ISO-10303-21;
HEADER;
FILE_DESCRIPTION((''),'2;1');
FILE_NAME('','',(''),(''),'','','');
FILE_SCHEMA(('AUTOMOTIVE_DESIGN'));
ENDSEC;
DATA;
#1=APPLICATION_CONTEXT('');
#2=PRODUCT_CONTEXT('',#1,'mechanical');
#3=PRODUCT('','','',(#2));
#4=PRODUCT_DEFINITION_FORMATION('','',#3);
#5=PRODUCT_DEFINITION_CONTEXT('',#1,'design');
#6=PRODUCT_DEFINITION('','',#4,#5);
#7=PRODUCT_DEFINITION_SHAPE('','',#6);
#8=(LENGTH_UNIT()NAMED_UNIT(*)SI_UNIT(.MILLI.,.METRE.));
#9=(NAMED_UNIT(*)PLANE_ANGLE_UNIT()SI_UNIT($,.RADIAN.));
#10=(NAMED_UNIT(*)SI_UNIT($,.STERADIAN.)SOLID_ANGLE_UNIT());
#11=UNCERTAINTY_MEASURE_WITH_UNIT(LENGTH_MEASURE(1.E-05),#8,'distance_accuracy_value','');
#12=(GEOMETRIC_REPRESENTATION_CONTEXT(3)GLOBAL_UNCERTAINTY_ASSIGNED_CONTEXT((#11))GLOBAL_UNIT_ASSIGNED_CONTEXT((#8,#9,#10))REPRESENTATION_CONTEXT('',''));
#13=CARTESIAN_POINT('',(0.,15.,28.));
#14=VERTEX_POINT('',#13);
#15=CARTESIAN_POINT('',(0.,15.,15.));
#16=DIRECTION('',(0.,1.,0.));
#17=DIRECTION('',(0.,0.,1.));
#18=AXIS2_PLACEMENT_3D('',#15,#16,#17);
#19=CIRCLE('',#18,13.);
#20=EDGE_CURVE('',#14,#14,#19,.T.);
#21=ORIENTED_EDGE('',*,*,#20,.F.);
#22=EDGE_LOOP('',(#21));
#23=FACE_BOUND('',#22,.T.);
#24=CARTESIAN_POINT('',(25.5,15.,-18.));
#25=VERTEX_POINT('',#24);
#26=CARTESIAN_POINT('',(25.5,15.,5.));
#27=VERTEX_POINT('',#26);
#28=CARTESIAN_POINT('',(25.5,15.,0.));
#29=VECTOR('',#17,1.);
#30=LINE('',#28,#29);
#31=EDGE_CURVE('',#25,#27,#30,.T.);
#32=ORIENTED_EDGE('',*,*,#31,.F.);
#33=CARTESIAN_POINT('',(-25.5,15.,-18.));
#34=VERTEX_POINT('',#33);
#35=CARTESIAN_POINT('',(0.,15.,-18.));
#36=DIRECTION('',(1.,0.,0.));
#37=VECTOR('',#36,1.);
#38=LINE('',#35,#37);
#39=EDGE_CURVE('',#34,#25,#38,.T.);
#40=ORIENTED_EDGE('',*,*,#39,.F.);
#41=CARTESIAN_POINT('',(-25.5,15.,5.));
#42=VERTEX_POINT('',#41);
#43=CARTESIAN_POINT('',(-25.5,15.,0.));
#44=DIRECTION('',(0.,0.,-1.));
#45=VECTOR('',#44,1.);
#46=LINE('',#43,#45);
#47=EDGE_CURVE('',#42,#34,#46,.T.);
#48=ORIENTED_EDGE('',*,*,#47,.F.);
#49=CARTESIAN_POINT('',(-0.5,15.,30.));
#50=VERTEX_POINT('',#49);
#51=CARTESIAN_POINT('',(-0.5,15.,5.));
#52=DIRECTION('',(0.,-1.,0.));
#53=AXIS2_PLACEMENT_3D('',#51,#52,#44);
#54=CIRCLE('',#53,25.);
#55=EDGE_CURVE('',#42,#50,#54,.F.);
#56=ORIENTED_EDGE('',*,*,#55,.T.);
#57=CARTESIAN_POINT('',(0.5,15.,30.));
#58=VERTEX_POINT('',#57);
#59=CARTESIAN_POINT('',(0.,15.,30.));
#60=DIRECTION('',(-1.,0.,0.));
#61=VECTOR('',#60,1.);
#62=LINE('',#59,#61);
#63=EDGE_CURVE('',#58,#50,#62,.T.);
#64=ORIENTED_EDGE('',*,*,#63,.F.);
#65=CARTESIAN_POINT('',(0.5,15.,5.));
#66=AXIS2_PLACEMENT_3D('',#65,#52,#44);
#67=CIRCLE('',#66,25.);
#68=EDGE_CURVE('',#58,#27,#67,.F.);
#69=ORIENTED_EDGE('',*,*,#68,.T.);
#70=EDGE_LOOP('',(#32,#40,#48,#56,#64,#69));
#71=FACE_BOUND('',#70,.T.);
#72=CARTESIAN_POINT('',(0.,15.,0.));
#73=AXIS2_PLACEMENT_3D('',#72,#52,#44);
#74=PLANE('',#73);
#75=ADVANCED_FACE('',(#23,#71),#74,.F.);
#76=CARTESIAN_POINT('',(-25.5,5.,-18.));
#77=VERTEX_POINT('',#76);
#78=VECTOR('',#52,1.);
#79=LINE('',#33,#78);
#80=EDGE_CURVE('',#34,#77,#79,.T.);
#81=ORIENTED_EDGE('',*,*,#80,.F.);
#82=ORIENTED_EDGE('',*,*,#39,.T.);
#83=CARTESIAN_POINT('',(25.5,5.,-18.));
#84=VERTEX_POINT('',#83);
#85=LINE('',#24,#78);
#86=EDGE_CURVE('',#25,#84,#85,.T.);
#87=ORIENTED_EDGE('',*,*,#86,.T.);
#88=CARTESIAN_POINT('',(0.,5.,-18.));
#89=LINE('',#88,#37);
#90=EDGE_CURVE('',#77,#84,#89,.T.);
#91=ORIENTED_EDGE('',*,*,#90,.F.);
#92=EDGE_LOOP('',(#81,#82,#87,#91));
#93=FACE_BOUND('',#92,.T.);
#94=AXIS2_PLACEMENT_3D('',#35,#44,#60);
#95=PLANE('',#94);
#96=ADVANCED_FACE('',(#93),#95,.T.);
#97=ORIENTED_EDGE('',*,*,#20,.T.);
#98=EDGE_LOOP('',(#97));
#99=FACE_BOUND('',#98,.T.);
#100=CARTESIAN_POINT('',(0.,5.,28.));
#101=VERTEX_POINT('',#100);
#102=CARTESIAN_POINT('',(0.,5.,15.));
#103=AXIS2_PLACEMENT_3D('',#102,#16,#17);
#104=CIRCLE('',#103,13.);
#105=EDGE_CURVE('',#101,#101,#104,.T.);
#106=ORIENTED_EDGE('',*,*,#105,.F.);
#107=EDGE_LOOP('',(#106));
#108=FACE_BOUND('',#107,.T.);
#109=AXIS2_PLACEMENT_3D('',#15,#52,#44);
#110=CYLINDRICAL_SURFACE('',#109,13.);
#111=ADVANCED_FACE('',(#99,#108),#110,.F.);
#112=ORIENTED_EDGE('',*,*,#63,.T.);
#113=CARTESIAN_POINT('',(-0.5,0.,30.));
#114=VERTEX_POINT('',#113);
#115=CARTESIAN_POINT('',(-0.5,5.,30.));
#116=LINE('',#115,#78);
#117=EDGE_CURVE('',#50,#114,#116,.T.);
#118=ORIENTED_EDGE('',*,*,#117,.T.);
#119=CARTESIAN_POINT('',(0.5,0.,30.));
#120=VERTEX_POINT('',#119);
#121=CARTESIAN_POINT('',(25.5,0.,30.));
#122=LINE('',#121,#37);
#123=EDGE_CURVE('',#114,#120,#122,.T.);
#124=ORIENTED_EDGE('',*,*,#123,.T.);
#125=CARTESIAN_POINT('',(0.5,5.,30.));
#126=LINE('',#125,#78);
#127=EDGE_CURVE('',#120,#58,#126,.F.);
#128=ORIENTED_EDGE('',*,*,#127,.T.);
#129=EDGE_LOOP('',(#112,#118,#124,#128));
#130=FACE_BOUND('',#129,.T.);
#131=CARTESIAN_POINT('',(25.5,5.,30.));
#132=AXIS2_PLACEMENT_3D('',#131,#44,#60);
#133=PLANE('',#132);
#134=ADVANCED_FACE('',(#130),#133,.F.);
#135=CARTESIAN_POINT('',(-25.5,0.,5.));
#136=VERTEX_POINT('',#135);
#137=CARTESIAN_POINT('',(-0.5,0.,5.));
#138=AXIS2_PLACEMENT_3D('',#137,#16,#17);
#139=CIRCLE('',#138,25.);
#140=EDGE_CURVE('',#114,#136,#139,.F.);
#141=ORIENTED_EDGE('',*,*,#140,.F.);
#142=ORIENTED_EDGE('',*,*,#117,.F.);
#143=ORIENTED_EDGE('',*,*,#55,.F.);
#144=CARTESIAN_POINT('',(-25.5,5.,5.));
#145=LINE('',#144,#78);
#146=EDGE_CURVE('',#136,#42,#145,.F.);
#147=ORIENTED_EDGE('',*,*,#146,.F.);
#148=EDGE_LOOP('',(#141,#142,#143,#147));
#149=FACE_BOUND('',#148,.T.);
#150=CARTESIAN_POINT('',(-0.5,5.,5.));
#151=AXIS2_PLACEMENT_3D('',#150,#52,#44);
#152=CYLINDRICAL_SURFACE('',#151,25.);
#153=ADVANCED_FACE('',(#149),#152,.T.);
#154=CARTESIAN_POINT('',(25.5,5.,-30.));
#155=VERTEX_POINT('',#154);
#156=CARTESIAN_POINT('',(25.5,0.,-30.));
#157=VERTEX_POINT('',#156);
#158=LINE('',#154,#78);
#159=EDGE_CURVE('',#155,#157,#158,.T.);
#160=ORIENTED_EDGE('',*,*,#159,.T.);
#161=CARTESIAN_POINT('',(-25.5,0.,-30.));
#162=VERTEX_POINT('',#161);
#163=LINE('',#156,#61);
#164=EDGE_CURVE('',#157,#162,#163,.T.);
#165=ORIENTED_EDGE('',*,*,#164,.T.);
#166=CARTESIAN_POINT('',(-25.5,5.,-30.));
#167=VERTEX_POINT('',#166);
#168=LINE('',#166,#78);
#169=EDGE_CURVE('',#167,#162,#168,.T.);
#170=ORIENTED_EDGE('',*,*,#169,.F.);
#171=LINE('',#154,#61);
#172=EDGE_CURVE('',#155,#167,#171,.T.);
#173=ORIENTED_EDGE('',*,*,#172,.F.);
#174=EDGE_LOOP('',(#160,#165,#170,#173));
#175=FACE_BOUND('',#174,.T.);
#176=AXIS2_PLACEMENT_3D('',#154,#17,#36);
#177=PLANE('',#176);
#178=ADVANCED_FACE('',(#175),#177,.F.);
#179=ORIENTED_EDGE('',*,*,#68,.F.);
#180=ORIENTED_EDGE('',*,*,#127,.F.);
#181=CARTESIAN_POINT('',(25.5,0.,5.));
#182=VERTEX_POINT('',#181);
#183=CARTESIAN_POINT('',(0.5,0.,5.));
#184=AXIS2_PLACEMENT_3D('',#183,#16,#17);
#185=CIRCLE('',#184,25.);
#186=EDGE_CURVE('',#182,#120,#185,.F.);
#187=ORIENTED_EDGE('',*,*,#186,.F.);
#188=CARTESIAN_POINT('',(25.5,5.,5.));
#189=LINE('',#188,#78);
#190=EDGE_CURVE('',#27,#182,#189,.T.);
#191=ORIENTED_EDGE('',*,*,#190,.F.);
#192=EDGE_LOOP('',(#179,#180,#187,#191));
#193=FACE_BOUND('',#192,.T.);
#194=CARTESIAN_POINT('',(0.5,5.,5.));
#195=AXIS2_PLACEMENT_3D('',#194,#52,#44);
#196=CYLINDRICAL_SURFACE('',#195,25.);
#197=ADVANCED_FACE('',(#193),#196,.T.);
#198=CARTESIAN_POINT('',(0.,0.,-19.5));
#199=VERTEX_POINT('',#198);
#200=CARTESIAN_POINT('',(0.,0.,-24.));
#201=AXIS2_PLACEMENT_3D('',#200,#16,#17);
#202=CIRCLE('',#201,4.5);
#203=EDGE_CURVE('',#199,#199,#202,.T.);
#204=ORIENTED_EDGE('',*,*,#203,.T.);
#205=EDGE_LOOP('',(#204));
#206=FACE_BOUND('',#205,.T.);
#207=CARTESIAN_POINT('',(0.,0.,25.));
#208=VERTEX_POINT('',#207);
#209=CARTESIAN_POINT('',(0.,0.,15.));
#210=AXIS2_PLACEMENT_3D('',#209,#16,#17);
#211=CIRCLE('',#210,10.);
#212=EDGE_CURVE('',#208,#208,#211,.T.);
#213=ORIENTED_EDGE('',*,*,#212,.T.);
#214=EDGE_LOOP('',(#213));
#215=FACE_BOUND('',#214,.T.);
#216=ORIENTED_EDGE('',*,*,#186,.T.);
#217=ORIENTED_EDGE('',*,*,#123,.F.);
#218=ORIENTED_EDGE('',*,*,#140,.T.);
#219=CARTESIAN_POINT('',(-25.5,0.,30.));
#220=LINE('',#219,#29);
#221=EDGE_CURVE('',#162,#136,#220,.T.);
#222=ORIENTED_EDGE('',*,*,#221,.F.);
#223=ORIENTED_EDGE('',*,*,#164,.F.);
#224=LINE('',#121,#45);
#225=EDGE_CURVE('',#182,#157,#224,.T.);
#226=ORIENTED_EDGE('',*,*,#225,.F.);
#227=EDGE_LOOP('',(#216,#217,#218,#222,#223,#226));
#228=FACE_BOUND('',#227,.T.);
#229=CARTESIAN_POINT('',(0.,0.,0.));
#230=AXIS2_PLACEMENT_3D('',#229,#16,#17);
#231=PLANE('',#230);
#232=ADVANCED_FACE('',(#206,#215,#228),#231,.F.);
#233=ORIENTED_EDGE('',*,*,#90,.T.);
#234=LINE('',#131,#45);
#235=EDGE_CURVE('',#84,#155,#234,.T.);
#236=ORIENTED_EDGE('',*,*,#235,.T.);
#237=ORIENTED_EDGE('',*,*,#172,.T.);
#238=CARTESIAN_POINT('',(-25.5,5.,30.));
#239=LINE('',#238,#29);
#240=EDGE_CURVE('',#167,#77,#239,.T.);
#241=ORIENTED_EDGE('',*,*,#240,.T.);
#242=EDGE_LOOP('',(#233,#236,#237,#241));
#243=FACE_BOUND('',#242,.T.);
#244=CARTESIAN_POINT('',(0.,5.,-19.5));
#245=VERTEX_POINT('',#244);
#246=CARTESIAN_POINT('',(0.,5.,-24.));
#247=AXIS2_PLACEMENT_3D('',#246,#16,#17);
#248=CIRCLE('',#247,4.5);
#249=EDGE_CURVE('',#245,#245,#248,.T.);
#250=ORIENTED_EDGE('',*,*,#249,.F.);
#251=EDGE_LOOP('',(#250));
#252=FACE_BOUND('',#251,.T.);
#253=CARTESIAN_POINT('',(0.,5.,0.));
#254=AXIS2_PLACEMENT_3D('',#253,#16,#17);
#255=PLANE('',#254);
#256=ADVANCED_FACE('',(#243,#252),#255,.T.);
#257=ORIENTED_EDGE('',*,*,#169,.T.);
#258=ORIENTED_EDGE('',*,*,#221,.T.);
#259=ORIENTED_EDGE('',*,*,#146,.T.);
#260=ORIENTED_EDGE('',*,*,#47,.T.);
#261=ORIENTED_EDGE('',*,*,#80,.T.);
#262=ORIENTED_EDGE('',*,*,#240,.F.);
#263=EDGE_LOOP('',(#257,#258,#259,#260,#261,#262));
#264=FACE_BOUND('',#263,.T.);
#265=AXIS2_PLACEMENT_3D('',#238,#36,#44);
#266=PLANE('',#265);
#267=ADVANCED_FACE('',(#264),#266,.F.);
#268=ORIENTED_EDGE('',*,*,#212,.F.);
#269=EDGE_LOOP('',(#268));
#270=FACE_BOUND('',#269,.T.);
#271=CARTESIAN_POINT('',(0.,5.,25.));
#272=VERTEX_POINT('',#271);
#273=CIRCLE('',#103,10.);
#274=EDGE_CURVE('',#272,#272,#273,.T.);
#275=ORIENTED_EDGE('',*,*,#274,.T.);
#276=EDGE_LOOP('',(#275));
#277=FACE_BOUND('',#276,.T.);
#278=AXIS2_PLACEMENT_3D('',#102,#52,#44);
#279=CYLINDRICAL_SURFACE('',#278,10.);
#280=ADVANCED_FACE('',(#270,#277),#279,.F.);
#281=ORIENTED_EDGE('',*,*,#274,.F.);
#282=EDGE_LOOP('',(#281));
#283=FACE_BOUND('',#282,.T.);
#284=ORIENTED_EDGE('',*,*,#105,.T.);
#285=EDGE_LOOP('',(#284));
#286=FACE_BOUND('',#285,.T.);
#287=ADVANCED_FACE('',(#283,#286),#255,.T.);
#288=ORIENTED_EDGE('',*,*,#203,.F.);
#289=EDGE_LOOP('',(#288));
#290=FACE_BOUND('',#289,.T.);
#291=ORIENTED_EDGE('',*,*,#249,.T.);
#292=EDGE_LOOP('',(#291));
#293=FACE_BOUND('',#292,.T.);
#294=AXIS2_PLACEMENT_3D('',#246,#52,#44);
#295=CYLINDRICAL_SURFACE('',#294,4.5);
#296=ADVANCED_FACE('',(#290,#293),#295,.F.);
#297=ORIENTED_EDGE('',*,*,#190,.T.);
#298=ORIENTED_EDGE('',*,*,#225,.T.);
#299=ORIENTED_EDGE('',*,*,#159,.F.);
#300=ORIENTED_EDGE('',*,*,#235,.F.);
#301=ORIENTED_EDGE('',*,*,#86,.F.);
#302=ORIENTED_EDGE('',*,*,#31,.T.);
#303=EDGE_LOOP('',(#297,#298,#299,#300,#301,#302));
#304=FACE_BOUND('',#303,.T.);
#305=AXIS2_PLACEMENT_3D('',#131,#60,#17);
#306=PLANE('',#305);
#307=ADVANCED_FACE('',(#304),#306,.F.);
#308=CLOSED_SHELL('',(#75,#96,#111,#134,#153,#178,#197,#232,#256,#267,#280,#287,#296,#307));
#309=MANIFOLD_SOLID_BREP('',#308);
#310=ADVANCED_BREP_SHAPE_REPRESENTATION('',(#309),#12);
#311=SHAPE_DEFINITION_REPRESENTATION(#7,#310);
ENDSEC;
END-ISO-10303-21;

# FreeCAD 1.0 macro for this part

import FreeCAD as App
import Part
import Sketcher
from FreeCAD import Vector


def edges_at(feature, points):
    """Names of the edges that pass closest to the given points."""
    edges = feature.Shape.Edges
    near = lambda p: min(range(len(edges)), key=lambda i: edges[i].distToShape(Part.Vertex(*p))[0])
    return sorted({f"Edge{near(p) + 1}" for p in points})


def add_polygon(sketch, points):
    """Adds a closed chain of lines whose ends are joined by coincident constraints."""
    first, n = sketch.GeometryCount, len(points)
    for a, b in zip(points, points[1:] + points[:1]):
        sketch.addGeometry(Part.LineSegment(App.Vector(*a, 0), App.Vector(*b, 0)), False)
    for i in range(n):
        sketch.addConstraint(Sketcher.Constraint("Coincident", first + i, 2, first + (i + 1) % n, 1))

doc = App.newDocument("Part")
body = doc.addObject("PartDesign::Body", "Body")

# Sketch on XZ plane
sketch1 = body.newObject("Sketcher::SketchObject", "Sketch")
sketch1.AttachmentSupport = (doc.getObject("XZ_Plane"), [""])
sketch1.MapMode = "FlatFace"
add_polygon(sketch1, [(-25.5, -30), (-25.5, 30), (25.5, 30), (25.5, -30)])  # lines 0-3
sketch1.addGeometry(Part.Circle(Vector(0, 15, 0), Vector(0, 0, 1), 10), False)  # 4
sketch1.addGeometry(Part.Circle(Vector(0, -24, 0), Vector(0, 0, 1), 4.5), False)  # 5
sketch1.addConstraint([
    Sketcher.Constraint("Vertical", 0),
    Sketcher.Constraint("Horizontal", 1),
    Sketcher.Constraint("Vertical", 2),
    Sketcher.Constraint("Horizontal", 3),
    Sketcher.Constraint("Symmetric", 0, 2, 2, 2, -1, 1),
    Sketcher.Constraint("PointOnObject", 4, 3, -2),
    Sketcher.Constraint("PointOnObject", 5, 3, -2),
    Sketcher.Constraint("Diameter", 4, 20.0),
    Sketcher.Constraint("Diameter", 5, 9.0),
    Sketcher.Constraint("DistanceX", 1, 1, 1, 2, 51.0),
    Sketcher.Constraint("DistanceY", 0, 1, 0, 2, 60.0),
    Sketcher.Constraint("DistanceY", -1, 1, 4, 3, 15.0),
    Sketcher.Constraint("DistanceY", 5, 3, -1, 1, 24.0),
])
pad1 = body.newObject("PartDesign::Pad", "Pad")
pad1.Profile = sketch1
pad1.Length = 5
pad1.Reversed = True

# Sketch on XZ plane
sketch2 = body.newObject("Sketcher::SketchObject", "Sketch001")
sketch2.AttachmentSupport = (doc.getObject("XZ_Plane"), [""])
sketch2.MapMode = "FlatFace"
sketch2.AttachmentOffset = App.Placement(Vector(0, 0, -5), App.Rotation())
add_polygon(sketch2, [(-26, -18), (-26, 30), (26, 30), (26, -18)])  # lines 0-3
sketch2.addGeometry(Part.Circle(Vector(0, 15, 0), Vector(0, 0, 1), 13), False)  # 4
sketch2.addConstraint([
    Sketcher.Constraint("Vertical", 0),
    Sketcher.Constraint("Horizontal", 1),
    Sketcher.Constraint("Vertical", 2),
    Sketcher.Constraint("Horizontal", 3),
    Sketcher.Constraint("PointOnObject", 4, 3, -2),
    Sketcher.Constraint("Diameter", 4, 26.0),
    Sketcher.Constraint("DistanceX", 1, 1, 1, 2, 51.0),
    Sketcher.Constraint("DistanceY", 0, 1, 0, 2, 48.0),
    Sketcher.Constraint("DistanceY", -1, 1, 4, 3, 15.0),
    Sketcher.Constraint("DistanceY", -1, 1, 0, 2, 30.0),
    Sketcher.Constraint("DistanceX", 0, 2, -1, 1, 25.5),
])
pad2 = body.newObject("PartDesign::Pad", "Pad001")
pad2.Profile = sketch2
pad2.Length = 10
pad2.Reversed = True
doc.recompute()

fillet = body.newObject("PartDesign::Fillet", "Fillet")
fillet.Base = (pad2, edges_at(pad2, [(25.5, 7.5, 30), (-25.5, 7.5, 30)]))
fillet.Radius = 25

doc.recompute()
